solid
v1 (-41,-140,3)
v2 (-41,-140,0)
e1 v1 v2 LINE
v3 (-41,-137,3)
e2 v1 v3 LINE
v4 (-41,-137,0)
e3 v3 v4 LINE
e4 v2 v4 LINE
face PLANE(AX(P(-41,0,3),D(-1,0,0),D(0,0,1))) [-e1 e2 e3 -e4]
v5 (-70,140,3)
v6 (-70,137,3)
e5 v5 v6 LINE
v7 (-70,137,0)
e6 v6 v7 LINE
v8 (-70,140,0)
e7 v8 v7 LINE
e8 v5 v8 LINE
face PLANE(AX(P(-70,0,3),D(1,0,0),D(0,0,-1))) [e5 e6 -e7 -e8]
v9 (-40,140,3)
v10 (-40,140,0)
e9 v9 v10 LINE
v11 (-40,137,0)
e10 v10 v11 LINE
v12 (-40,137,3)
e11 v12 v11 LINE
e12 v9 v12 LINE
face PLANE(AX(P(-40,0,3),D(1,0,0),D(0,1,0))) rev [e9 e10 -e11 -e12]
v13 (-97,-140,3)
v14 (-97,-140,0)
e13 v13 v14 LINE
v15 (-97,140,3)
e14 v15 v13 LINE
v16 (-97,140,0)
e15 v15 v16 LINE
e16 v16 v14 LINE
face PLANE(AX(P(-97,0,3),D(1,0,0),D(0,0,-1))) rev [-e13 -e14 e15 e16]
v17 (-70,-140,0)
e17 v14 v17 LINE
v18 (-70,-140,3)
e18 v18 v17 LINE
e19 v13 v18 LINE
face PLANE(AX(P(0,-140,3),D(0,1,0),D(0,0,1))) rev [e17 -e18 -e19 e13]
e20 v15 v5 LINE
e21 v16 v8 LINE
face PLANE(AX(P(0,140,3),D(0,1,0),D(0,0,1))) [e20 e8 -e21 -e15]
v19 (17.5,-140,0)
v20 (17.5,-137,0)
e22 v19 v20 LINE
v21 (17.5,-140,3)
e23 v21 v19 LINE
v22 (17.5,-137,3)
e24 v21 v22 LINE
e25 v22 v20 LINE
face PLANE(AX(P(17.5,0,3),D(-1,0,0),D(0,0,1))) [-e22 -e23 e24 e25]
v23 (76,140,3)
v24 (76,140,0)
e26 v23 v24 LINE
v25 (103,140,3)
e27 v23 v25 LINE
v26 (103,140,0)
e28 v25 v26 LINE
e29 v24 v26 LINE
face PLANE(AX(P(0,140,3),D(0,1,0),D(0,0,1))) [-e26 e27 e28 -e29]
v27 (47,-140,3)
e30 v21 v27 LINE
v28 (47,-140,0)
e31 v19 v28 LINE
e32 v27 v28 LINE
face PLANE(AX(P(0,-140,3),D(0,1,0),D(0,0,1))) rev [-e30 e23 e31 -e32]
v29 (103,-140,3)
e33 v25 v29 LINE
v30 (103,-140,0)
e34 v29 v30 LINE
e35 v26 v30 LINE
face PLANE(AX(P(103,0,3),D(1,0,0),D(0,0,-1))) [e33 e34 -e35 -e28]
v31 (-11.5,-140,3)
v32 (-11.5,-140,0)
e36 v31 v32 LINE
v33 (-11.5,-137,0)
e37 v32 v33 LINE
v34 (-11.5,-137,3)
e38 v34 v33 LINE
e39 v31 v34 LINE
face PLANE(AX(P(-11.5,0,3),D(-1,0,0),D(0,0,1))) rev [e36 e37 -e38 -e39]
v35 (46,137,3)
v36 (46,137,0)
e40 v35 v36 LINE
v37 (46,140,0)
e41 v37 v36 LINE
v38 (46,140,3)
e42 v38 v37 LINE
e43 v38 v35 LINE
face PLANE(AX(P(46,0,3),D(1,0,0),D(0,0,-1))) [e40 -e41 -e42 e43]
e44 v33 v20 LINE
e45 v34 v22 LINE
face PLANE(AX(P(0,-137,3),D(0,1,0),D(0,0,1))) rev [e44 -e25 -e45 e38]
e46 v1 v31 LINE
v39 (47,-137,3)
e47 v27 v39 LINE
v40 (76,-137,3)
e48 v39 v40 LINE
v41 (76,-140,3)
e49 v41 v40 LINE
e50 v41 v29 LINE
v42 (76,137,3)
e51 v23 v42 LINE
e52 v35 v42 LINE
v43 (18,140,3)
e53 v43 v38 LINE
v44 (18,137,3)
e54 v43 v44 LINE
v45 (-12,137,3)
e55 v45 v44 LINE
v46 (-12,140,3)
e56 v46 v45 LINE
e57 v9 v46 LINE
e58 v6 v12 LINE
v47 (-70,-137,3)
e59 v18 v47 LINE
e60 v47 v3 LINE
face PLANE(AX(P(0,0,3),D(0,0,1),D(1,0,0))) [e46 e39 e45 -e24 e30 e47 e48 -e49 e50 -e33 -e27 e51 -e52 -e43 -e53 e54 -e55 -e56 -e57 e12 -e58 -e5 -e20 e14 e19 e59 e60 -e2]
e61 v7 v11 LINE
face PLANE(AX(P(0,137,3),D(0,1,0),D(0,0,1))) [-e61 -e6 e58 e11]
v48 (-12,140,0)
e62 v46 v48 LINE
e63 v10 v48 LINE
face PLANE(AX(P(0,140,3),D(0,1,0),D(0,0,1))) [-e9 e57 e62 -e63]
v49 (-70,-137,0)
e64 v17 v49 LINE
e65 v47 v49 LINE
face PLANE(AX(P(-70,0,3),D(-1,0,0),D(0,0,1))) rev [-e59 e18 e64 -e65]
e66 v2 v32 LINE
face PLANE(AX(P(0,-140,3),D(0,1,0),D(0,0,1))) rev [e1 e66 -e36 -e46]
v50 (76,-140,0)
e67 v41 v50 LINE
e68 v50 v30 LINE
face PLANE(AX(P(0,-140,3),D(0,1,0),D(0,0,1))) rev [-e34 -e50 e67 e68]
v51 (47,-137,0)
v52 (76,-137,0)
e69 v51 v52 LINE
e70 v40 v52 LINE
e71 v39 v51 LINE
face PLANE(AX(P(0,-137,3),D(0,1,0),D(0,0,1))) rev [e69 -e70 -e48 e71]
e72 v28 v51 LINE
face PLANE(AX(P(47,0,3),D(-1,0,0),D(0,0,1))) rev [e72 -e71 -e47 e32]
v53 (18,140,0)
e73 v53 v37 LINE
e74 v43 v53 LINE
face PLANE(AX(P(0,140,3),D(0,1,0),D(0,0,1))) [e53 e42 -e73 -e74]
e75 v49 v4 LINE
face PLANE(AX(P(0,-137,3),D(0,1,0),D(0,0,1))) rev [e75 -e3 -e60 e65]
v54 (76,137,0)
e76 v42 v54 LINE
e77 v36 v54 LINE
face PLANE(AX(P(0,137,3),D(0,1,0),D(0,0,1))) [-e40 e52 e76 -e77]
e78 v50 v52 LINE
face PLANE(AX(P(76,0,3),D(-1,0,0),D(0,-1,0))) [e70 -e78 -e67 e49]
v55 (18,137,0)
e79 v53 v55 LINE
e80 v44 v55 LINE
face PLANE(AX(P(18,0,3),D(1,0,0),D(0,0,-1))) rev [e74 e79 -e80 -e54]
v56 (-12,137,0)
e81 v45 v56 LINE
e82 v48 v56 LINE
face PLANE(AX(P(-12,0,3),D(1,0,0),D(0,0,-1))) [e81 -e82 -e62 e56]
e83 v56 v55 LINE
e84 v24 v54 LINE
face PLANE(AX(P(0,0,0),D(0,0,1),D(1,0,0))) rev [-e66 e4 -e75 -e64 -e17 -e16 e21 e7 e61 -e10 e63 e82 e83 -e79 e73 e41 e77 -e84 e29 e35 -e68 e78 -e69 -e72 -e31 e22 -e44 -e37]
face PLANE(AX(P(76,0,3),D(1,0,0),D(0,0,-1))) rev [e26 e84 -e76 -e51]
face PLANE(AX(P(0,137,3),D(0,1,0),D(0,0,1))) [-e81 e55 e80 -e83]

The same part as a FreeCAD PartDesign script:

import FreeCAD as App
import Part
import Sketcher

V = App.Vector
Q = App.Units.Quantity


def add_polygon(sketch, points):
    """Adds a closed chain of lines whose ends are joined by coincident constraints."""
    first, n = sketch.GeometryCount, len(points)
    for a, b in zip(points, points[1:] + points[:1]):
        sketch.addGeometry(Part.LineSegment(App.Vector(*a, 0), App.Vector(*b, 0)), False)
    for i in range(n):
        sketch.addConstraint(Sketcher.Constraint("Coincident", first + i, 2, first + (i + 1) % n, 1))

doc = App.newDocument("Part")
body = doc.addObject("PartDesign::Body", "Body")

sketch1 = body.newObject("Sketcher::SketchObject", "Sketch")
sketch1.AttachmentSupport = (doc.getObject("XY_Plane"), [""])
sketch1.MapMode = "FlatFace"
add_polygon(sketch1, [(103, 140), (76, 140), (76, 137), (46, 137), (46, 140), (18, 140), (18, 137), (-12, 137), (-12, 140), (-40, 140), (-40, 137), (-70, 137), (-70, 140), (-97, 140), (-97, -140), (-70, -140), (-70, -137), (-41, -137), (-41, -140), (-11.5, -140), (-11.5, -137), (17.5, -137), (17.5, -140), (47, -140), (47, -137), (76, -137), (76, -140), (103, -140)])
sketch1.addConstraint([
    Sketcher.Constraint("Horizontal", 0),
    Sketcher.Constraint("Vertical", 1),
    Sketcher.Constraint("Horizontal", 2),
    Sketcher.Constraint("Vertical", 3),
    Sketcher.Constraint("Horizontal", 4),
    Sketcher.Constraint("Vertical", 5),
    Sketcher.Constraint("Horizontal", 6),
    Sketcher.Constraint("Vertical", 7),
    Sketcher.Constraint("Horizontal", 8),
    Sketcher.Constraint("Vertical", 9),
    Sketcher.Constraint("Horizontal", 10),
    Sketcher.Constraint("Vertical", 11),
    Sketcher.Constraint("Horizontal", 12),
    Sketcher.Constraint("Vertical", 13),
    Sketcher.Constraint("Horizontal", 14),
    Sketcher.Constraint("Vertical", 15),
    Sketcher.Constraint("Horizontal", 16),
    Sketcher.Constraint("Vertical", 17),
    Sketcher.Constraint("Horizontal", 18),
    Sketcher.Constraint("Vertical", 19),
    Sketcher.Constraint("Horizontal", 20),
    Sketcher.Constraint("Vertical", 21),
    Sketcher.Constraint("Horizontal", 22),
    Sketcher.Constraint("Vertical", 23),
    Sketcher.Constraint("Horizontal", 24),
    Sketcher.Constraint("Vertical", 25),
    Sketcher.Constraint("Horizontal", 26),
    Sketcher.Constraint("Vertical", 27),
    Sketcher.Constraint("Symmetric", 11, 2, 14, 2, -1),
    Sketcher.Constraint("Symmetric", 1, 2, 24, 2, -1),
    Sketcher.Constraint("Horizontal", 0, 2, 3, 2),
    Sketcher.Constraint("Horizontal", 2, 2, 5, 2),
    Sketcher.Constraint("Horizontal", 4, 2, 7, 2),
    Sketcher.Constraint("Horizontal", 6, 2, 9, 2),
    Sketcher.Constraint("Horizontal", 8, 2, 11, 2),
    Sketcher.Constraint("Horizontal", 14, 2, 17, 2),
    Sketcher.Constraint("Horizontal", 16, 2, 19, 2),
    Sketcher.Constraint("Horizontal", 18, 2, 21, 2),
    Sketcher.Constraint("Horizontal", 20, 2, 23, 2),
    Sketcher.Constraint("Horizontal", 22, 2, 25, 2),
    Sketcher.Constraint("Equal", 2, 6),
    Sketcher.Constraint("Equal", 4, 8),
    Sketcher.Constraint("Equal", 6, 10),
    Sketcher.Constraint("Equal", 0, 12),
    Sketcher.Constraint("Equal", 16, 20),
    Sketcher.Constraint("Equal", 18, 22),
    Sketcher.Constraint("Equal", 20, 24),
    Sketcher.Constraint("DistanceX", 0, 2, 0, 1, Q("27 mm")),
    Sketcher.Constraint("DistanceX", 2, 2, 2, 1, Q("30 mm")),
    Sketcher.Constraint("DistanceX", 4, 2, 4, 1, Q("28 mm")),
    Sketcher.Constraint("DistanceX", 16, 1, 16, 2, Q("29 mm")),
    Sketcher.Constraint("DistanceY", 1, 2, 1, 1, Q("3 mm")),
    Sketcher.Constraint("DistanceY", 13, 2, 13, 1, Q("280 mm")),
    Sketcher.Constraint("DistanceX", -1, 1, 0, 2, Q("76 mm")),
])
pad1 = body.newObject("PartDesign::Pad", "Pad")
pad1.Profile = sketch1
pad1.Length = 3

doc.recompute()
